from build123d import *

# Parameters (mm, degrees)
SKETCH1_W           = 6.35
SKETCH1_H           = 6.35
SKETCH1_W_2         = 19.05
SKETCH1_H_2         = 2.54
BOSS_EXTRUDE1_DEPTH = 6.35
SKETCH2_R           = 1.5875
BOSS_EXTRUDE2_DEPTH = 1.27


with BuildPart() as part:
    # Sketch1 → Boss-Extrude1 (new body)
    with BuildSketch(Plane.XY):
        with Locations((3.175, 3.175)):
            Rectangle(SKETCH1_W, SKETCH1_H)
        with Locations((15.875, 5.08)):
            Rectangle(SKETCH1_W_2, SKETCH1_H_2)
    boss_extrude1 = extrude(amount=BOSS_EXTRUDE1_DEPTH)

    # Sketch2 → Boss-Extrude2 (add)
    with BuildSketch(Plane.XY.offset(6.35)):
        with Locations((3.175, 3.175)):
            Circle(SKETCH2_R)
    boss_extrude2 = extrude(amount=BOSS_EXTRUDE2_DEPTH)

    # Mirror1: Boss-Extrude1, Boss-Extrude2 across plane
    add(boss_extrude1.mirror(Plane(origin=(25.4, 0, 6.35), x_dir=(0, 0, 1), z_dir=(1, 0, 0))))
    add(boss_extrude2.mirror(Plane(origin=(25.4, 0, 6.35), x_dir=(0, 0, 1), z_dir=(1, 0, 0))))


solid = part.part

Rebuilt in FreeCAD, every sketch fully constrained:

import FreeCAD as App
import Part
import Sketcher

V = App.Vector
Q = App.Units.Quantity

doc = App.newDocument("Part")
body = doc.addObject("PartDesign::Body", "Body")

# Sketch on XY plane
sketch1 = body.newObject("Sketcher::SketchObject", "Sketch")
sketch1.AttachmentSupport = (doc.getObject("XY_Plane"), [""])
sketch1.MapMode = "FlatFace"
sketch1.addGeometry([
    Part.LineSegment(V(0, 6.35, 0), V(0, 0, 0)),  # 0
    Part.LineSegment(V(0, 0, 0), V(6.35, 0, 0)),  # 1
    Part.LineSegment(V(6.35, 0, 0), V(6.35, 3.81, 0)),  # 2
    Part.LineSegment(V(6.35, 3.81, 0), V(25.4, 3.81, 0)),  # 3
    Part.LineSegment(V(25.4, 3.81, 0), V(25.4, 6.35, 0)),  # 4
    Part.LineSegment(V(25.4, 6.35, 0), V(0, 6.35, 0)),  # 5
], False)
sketch1.addConstraint([
    Sketcher.Constraint("Coincident", 0, 2, 1, 1),
    Sketcher.Constraint("Coincident", 1, 2, 2, 1),
    Sketcher.Constraint("Coincident", 2, 2, 3, 1),
    Sketcher.Constraint("Coincident", 3, 2, 4, 1),
    Sketcher.Constraint("Coincident", 4, 2, 5, 1),
    Sketcher.Constraint("Coincident", 5, 2, 0, 1),
    Sketcher.Constraint("Vertical", 0),
    Sketcher.Constraint("Horizontal", 1),
    Sketcher.Constraint("Vertical", 2),
    Sketcher.Constraint("Horizontal", 3),
    Sketcher.Constraint("Vertical", 4),
    Sketcher.Constraint("Horizontal", 5),
    Sketcher.Constraint("Coincident", 0, 2, -1, 1),
    Sketcher.Constraint("Equal", 1, 0),
    Sketcher.Constraint("DistanceX", 5, 2, 5, 1, Q("1 in")),
    Sketcher.Constraint("DistanceY", 4, 1, 4, 2, Q("0.1 in")),
    Sketcher.Constraint("DistanceX", 1, 1, 1, 2, Q("0.25 in")),
])
pad1 = body.newObject("PartDesign::Pad", "Pad")
pad1.Profile = sketch1
pad1.Length = Q("0.25 in")

# Sketch on XY plane
sketch2 = body.newObject("Sketcher::SketchObject", "Sketch001")
sketch2.AttachmentSupport = (doc.getObject("XY_Plane"), [""])
sketch2.MapMode = "FlatFace"
sketch2.AttachmentOffset = App.Placement(V(0, 0, 0.25 * 25.4), App.Rotation())
sketch2.addGeometry(Part.Circle(V(3.175, 3.175, 0), V(0, 0, 1), 1.5875), False)
sketch2.addConstraint([
    Sketcher.Constraint("Diameter", 0, Q("0.125 in")),
    Sketcher.Constraint("DistanceX", -1, 1, 0, 3, Q("0.125 in")),
    Sketcher.Constraint("DistanceY", -1, 1, 0, 3, Q("0.125 in")),
])
pad2 = body.newObject("PartDesign::Pad", "Pad001")
pad2.Profile = sketch2
pad2.Length = Q("0.05 in")
doc.recompute()

datumplane = body.newObject("PartDesign::Plane", "DatumPlane")
datumplane.AttachmentSupport = (doc.getObject("YZ_Plane"), [""])
datumplane.MapMode = "FlatFace"
datumplane.AttachmentOffset = App.Placement(V(0, 0, 1 * 25.4), App.Rotation())
mirrored = body.newObject("PartDesign::Mirrored", "Mirrored")
mirrored.Originals = [pad1, pad2]
mirrored.MirrorPlane = (datumplane, [""])
body.Tip = mirrored

doc.recompute()
